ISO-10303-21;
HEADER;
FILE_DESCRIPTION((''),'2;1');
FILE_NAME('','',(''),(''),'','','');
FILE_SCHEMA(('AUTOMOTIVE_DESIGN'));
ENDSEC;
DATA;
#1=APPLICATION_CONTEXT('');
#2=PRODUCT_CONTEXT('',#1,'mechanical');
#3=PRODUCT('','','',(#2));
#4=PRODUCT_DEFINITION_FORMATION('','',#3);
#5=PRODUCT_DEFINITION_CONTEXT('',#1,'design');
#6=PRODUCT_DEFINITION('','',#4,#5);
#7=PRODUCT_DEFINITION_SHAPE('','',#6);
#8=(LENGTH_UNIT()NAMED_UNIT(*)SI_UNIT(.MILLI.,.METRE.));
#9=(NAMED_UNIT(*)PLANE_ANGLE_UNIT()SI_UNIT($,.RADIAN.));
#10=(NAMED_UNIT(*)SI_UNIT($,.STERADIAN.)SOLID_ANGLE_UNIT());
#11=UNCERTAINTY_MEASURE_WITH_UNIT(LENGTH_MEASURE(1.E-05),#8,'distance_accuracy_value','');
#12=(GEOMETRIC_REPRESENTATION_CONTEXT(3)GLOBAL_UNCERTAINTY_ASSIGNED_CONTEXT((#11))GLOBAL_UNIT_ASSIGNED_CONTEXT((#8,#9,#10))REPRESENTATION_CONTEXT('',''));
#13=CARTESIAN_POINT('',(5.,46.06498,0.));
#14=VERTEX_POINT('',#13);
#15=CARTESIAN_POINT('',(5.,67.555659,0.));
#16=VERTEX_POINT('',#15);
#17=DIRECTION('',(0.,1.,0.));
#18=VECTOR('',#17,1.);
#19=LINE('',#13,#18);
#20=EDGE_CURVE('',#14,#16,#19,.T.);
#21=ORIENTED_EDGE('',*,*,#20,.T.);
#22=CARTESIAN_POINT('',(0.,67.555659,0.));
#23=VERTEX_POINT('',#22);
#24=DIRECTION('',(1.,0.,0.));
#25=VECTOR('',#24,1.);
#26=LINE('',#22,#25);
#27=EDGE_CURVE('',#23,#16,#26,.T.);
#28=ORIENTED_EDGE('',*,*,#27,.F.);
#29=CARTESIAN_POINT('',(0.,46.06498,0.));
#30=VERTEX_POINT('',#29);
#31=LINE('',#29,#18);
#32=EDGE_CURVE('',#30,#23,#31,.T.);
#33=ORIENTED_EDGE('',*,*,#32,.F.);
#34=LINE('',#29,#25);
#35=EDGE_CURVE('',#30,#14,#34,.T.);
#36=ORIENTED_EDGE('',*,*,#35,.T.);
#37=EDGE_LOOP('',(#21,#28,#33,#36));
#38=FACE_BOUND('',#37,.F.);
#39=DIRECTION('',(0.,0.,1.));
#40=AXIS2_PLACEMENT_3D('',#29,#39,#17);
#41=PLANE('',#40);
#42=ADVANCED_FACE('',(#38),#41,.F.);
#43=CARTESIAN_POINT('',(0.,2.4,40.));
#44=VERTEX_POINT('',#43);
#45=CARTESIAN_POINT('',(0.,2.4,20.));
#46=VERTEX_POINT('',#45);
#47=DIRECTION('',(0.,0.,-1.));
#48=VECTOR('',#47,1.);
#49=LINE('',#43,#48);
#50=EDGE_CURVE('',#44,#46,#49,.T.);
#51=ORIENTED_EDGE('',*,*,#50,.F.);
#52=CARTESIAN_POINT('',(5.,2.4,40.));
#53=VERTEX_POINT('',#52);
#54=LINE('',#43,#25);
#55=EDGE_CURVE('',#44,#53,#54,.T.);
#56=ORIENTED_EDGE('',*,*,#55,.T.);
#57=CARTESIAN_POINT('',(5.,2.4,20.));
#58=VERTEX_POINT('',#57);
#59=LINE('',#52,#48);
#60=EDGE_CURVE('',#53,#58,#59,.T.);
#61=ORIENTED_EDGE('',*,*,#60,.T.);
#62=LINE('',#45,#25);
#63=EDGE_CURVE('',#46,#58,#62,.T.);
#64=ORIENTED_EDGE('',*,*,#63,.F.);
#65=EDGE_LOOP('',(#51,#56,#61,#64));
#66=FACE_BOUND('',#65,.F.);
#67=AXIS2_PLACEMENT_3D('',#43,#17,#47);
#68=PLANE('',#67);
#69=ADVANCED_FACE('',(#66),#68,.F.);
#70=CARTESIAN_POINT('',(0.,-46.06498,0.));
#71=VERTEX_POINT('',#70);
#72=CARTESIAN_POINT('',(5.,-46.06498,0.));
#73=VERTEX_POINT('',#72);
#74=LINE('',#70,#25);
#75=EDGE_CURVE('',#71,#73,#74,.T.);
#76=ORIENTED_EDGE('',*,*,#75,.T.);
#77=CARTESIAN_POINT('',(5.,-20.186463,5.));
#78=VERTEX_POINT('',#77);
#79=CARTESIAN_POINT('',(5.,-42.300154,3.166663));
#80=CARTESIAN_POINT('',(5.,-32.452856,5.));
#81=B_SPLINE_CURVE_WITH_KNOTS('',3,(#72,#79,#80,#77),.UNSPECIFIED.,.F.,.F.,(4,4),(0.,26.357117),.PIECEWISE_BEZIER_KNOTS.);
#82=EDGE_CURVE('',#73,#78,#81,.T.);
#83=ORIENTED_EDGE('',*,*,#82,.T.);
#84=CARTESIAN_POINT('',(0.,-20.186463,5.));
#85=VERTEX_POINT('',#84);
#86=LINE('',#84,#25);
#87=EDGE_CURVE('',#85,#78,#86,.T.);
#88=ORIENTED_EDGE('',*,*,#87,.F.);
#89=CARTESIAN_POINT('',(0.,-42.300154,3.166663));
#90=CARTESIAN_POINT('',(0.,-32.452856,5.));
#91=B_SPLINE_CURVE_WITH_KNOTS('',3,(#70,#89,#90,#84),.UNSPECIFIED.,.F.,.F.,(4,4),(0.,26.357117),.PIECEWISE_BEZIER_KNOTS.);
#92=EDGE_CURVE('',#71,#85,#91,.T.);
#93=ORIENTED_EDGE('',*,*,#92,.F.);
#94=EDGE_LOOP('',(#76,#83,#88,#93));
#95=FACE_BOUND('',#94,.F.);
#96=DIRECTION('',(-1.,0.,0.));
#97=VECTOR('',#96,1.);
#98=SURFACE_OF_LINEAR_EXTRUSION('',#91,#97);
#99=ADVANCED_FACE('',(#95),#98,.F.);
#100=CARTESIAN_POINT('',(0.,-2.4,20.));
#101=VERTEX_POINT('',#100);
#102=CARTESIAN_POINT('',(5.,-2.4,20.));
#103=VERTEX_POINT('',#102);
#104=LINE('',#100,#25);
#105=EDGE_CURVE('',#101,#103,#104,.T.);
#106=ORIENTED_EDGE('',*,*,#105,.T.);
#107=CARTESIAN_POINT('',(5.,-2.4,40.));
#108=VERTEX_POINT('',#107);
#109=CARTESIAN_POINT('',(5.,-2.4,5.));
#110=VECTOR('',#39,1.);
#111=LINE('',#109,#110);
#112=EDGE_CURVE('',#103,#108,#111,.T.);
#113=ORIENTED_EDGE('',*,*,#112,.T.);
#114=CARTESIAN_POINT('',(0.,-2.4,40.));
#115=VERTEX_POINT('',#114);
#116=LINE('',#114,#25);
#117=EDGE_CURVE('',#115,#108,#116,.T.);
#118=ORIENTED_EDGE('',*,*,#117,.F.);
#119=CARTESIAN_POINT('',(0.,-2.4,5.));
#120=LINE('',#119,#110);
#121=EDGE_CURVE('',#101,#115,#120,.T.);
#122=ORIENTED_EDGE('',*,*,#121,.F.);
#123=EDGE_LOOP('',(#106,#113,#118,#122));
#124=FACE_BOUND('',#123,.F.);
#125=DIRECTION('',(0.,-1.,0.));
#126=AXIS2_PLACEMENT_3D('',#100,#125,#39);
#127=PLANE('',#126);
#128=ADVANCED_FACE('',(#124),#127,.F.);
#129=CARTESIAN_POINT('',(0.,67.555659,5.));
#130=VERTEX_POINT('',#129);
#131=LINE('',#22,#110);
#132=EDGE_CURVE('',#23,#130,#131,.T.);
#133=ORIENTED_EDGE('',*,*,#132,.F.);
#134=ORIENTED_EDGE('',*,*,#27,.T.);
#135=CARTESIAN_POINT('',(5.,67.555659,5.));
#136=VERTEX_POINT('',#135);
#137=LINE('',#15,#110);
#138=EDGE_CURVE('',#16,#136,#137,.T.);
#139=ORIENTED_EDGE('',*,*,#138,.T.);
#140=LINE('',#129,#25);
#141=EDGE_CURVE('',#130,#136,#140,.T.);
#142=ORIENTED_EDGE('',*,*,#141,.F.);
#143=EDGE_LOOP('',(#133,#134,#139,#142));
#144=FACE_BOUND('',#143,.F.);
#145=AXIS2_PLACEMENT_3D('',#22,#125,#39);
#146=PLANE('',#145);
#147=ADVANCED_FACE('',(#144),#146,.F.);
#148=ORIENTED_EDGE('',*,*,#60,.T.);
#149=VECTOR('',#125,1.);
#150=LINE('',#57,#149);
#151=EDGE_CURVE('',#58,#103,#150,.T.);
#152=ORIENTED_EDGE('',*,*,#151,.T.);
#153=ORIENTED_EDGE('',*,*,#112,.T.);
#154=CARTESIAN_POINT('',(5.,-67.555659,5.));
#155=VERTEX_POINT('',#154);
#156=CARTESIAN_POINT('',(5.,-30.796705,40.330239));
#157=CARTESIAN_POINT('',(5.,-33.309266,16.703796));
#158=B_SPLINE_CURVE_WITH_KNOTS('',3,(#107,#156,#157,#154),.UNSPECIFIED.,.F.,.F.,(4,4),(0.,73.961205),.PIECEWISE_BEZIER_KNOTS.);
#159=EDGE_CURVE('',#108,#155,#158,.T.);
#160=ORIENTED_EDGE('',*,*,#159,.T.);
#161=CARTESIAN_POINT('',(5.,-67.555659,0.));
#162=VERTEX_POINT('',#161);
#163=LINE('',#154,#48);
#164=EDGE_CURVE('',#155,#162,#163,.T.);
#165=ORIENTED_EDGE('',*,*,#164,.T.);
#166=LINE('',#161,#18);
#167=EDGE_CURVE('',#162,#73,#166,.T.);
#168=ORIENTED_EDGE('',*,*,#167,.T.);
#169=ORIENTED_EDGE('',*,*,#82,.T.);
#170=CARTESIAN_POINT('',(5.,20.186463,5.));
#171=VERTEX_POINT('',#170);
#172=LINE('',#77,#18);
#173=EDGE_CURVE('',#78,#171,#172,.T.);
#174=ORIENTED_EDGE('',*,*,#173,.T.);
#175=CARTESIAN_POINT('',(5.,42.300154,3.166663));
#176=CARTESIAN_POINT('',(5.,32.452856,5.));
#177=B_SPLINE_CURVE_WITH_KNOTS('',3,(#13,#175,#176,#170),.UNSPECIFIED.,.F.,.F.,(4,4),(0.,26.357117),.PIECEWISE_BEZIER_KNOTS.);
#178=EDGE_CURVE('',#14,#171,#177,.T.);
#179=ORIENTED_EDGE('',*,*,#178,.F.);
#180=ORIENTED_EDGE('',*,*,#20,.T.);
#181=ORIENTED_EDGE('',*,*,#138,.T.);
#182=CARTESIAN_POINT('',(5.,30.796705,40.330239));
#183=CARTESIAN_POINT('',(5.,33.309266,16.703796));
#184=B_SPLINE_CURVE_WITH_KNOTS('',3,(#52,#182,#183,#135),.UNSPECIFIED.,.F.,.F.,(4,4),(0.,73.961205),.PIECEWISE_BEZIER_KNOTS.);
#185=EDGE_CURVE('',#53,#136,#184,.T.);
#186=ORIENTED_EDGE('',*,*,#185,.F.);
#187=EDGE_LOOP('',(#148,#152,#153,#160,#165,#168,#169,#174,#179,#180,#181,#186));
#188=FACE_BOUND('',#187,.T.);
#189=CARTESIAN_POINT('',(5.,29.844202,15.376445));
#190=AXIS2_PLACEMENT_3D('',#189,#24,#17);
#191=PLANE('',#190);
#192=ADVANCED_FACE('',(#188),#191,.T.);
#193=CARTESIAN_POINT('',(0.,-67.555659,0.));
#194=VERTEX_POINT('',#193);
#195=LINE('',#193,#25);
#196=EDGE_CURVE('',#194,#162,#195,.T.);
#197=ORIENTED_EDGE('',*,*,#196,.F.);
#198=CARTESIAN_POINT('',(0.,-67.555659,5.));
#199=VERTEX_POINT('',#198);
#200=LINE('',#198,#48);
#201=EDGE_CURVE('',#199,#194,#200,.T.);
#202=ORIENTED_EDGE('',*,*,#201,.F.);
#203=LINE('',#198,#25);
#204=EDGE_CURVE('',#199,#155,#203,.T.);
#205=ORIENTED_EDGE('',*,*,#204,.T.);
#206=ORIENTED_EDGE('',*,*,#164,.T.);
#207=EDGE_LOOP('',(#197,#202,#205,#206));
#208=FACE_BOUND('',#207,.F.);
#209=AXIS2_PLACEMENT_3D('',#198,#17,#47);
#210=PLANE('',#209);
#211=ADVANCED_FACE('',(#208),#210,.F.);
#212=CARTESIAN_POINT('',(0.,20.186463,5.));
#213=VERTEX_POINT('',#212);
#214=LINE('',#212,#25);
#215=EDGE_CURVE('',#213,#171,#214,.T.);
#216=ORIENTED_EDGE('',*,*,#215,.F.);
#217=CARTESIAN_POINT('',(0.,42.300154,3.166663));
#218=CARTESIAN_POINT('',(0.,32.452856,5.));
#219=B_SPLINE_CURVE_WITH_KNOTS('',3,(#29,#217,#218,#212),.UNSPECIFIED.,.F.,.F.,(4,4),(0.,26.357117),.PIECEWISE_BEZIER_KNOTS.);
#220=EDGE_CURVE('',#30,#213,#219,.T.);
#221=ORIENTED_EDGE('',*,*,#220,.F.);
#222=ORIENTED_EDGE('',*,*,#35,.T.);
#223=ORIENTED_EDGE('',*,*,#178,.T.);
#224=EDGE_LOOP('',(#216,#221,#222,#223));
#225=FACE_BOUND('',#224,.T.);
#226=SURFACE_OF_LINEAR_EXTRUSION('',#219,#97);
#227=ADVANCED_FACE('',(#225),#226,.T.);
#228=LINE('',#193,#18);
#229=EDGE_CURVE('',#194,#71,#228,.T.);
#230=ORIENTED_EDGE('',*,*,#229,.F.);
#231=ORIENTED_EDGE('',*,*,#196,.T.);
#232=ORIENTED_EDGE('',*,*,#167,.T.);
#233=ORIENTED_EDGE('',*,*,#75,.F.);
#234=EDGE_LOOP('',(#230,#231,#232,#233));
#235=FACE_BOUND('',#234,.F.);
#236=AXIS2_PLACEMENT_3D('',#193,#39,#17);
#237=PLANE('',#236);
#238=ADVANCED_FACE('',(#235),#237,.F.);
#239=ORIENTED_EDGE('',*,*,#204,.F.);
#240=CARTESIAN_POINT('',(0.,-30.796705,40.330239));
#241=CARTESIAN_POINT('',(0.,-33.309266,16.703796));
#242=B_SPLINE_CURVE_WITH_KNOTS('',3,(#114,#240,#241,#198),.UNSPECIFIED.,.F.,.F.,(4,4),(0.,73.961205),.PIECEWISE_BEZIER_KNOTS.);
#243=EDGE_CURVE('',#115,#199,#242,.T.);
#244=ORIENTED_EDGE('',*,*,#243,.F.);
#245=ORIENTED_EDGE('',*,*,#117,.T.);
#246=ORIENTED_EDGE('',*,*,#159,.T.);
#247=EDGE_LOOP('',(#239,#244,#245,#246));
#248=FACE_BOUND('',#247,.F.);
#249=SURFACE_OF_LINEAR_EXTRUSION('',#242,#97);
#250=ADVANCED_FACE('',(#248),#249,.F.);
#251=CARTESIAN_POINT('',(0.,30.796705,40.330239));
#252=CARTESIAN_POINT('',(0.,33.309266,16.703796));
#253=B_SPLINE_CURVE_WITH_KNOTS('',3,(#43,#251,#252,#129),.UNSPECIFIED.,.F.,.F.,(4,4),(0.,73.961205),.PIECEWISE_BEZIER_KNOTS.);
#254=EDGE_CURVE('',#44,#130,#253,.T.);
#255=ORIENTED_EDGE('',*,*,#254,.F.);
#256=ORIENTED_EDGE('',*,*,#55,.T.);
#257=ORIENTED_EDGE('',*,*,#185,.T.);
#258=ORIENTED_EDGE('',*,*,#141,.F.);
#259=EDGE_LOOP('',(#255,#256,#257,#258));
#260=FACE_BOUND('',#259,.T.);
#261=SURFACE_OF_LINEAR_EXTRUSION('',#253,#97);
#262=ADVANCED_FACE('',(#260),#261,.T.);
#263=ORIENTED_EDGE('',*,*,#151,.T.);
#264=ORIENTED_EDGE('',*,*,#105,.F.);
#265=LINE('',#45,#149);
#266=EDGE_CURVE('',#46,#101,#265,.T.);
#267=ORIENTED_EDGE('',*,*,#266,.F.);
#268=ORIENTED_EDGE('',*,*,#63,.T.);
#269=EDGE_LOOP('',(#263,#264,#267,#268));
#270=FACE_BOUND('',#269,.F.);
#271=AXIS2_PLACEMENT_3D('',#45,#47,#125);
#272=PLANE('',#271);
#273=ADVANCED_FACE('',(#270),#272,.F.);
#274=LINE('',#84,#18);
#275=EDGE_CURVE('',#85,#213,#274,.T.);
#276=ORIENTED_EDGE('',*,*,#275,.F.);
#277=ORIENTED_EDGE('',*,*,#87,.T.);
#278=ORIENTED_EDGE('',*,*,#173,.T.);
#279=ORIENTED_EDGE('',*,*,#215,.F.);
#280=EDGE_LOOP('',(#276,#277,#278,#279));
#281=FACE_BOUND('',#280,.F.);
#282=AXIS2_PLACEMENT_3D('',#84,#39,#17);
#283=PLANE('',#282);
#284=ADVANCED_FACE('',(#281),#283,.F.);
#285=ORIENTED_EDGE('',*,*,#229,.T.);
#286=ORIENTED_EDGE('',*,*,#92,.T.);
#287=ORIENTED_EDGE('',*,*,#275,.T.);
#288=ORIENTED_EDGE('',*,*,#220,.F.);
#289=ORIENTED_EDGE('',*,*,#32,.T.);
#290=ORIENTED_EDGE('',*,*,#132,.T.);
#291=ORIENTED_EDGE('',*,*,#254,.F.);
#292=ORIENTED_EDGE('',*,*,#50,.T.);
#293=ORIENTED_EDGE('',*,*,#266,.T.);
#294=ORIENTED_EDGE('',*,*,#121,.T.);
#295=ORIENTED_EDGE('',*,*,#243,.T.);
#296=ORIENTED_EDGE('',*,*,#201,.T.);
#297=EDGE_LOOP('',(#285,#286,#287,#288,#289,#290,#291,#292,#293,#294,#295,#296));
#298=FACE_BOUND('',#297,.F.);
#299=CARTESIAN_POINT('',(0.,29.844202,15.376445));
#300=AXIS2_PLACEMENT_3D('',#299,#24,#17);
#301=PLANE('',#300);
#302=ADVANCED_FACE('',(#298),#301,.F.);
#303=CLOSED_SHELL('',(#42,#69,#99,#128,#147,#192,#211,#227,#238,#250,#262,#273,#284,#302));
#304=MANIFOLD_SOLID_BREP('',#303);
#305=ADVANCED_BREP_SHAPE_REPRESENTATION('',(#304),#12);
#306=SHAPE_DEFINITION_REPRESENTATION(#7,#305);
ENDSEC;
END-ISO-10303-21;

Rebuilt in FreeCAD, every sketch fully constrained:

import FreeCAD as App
import Part
import Sketcher
from FreeCAD import Vector
Q = App.Units.Quantity

doc = App.newDocument("Part")
body = doc.addObject("PartDesign::Body", "Body")

sketch1 = body.newObject("Sketcher::SketchObject", "Sketch")
sketch1.AttachmentSupport = (doc.getObject("YZ_Plane"), [""])
sketch1.MapMode = "FlatFace"
sketch1.addGeometry([
    Part.BSplineCurve([Vector(46.06498, 0, 0), Vector(42.300154, 3.166663, 0), Vector(32.452856, 5, 0), Vector(20.186463, 5, 0)], [4, 4], [0, 26.357117], False, 3, [1, 1, 1, 1], False),
    Part.LineSegment(Vector(46.06498, 0, 0), Vector(67.555659, 0, 0)),
    Part.LineSegment(Vector(67.555659, 0, 0), Vector(67.555659, 5, 0)),
    Part.BSplineCurve([Vector(2.4, 40, 0), Vector(30.796705, 40.330239, 0), Vector(33.309266, 16.703796, 0), Vector(67.555659, 5, 0)], [4, 4], [0, 73.961205], False, 3, [1, 1, 1, 1], False),
    Part.LineSegment(Vector(2.4, 40, 0), Vector(2.4, 20, 0)),
    Part.LineSegment(Vector(2.4, 20, 0), Vector(-2.4, 20, 0)),
    Part.LineSegment(Vector(-2.4, 20, 0), Vector(-2.4, 40, 0)),
    Part.BSplineCurve([Vector(-2.4, 40, 0), Vector(-30.796705, 40.330239, 0), Vector(-33.309266, 16.703796, 0), Vector(-67.555659, 5, 0)], [4, 4], [0, 73.961205], False, 3, [1, 1, 1, 1], False),
    Part.LineSegment(Vector(-67.555659, 5, 0), Vector(-67.555659, 0, 0)),
    Part.LineSegment(Vector(-67.555659, 0, 0), Vector(-46.06498, 0, 0)),
    Part.BSplineCurve([Vector(-46.06498, 0, 0), Vector(-42.300154, 3.166663, 0), Vector(-32.452856, 5, 0), Vector(-20.186463, 5, 0)], [4, 4], [0, 26.357117], False, 3, [1, 1, 1, 1], False),
    Part.LineSegment(Vector(-20.186463, 5, 0), Vector(20.186463, 5, 0)),
], False)
sketch1.addConstraint([
    Sketcher.Constraint("Block", 0),
    Sketcher.Constraint("Block", 3),
    Sketcher.Constraint("Block", 7),
    Sketcher.Constraint("Block", 10),
    Sketcher.Constraint("Coincident", 0, 1, 1, 1),
    Sketcher.Constraint("Coincident", 1, 2, 2, 1),
    Sketcher.Constraint("Coincident", 2, 2, 3, 2),
    Sketcher.Constraint("Coincident", 3, 1, 4, 1),
    Sketcher.Constraint("Coincident", 4, 2, 5, 1),
    Sketcher.Constraint("Coincident", 5, 2, 6, 1),
    Sketcher.Constraint("Coincident", 6, 2, 7, 1),
    Sketcher.Constraint("Coincident", 7, 2, 8, 1),
    Sketcher.Constraint("Coincident", 8, 2, 9, 1),
    Sketcher.Constraint("Coincident", 9, 2, 10, 1),
    Sketcher.Constraint("Coincident", 10, 2, 11, 1),
    Sketcher.Constraint("Coincident", 11, 2, 0, 2),
    Sketcher.Constraint("Horizontal", 1),
    Sketcher.Constraint("Vertical", 2),
    Sketcher.Constraint("Vertical", 4),
    Sketcher.Constraint("Horizontal", 5),
    Sketcher.Constraint("Vertical", 6),
    Sketcher.Constraint("Vertical", 8),
    Sketcher.Constraint("Horizontal", 9),
    Sketcher.Constraint("DistanceY", 4, 2, 4, 1, Q("20 mm")),
])
pad1 = body.newObject("PartDesign::Pad", "Pad")
pad1.Profile = sketch1
pad1.Length = 5

doc.recompute()
